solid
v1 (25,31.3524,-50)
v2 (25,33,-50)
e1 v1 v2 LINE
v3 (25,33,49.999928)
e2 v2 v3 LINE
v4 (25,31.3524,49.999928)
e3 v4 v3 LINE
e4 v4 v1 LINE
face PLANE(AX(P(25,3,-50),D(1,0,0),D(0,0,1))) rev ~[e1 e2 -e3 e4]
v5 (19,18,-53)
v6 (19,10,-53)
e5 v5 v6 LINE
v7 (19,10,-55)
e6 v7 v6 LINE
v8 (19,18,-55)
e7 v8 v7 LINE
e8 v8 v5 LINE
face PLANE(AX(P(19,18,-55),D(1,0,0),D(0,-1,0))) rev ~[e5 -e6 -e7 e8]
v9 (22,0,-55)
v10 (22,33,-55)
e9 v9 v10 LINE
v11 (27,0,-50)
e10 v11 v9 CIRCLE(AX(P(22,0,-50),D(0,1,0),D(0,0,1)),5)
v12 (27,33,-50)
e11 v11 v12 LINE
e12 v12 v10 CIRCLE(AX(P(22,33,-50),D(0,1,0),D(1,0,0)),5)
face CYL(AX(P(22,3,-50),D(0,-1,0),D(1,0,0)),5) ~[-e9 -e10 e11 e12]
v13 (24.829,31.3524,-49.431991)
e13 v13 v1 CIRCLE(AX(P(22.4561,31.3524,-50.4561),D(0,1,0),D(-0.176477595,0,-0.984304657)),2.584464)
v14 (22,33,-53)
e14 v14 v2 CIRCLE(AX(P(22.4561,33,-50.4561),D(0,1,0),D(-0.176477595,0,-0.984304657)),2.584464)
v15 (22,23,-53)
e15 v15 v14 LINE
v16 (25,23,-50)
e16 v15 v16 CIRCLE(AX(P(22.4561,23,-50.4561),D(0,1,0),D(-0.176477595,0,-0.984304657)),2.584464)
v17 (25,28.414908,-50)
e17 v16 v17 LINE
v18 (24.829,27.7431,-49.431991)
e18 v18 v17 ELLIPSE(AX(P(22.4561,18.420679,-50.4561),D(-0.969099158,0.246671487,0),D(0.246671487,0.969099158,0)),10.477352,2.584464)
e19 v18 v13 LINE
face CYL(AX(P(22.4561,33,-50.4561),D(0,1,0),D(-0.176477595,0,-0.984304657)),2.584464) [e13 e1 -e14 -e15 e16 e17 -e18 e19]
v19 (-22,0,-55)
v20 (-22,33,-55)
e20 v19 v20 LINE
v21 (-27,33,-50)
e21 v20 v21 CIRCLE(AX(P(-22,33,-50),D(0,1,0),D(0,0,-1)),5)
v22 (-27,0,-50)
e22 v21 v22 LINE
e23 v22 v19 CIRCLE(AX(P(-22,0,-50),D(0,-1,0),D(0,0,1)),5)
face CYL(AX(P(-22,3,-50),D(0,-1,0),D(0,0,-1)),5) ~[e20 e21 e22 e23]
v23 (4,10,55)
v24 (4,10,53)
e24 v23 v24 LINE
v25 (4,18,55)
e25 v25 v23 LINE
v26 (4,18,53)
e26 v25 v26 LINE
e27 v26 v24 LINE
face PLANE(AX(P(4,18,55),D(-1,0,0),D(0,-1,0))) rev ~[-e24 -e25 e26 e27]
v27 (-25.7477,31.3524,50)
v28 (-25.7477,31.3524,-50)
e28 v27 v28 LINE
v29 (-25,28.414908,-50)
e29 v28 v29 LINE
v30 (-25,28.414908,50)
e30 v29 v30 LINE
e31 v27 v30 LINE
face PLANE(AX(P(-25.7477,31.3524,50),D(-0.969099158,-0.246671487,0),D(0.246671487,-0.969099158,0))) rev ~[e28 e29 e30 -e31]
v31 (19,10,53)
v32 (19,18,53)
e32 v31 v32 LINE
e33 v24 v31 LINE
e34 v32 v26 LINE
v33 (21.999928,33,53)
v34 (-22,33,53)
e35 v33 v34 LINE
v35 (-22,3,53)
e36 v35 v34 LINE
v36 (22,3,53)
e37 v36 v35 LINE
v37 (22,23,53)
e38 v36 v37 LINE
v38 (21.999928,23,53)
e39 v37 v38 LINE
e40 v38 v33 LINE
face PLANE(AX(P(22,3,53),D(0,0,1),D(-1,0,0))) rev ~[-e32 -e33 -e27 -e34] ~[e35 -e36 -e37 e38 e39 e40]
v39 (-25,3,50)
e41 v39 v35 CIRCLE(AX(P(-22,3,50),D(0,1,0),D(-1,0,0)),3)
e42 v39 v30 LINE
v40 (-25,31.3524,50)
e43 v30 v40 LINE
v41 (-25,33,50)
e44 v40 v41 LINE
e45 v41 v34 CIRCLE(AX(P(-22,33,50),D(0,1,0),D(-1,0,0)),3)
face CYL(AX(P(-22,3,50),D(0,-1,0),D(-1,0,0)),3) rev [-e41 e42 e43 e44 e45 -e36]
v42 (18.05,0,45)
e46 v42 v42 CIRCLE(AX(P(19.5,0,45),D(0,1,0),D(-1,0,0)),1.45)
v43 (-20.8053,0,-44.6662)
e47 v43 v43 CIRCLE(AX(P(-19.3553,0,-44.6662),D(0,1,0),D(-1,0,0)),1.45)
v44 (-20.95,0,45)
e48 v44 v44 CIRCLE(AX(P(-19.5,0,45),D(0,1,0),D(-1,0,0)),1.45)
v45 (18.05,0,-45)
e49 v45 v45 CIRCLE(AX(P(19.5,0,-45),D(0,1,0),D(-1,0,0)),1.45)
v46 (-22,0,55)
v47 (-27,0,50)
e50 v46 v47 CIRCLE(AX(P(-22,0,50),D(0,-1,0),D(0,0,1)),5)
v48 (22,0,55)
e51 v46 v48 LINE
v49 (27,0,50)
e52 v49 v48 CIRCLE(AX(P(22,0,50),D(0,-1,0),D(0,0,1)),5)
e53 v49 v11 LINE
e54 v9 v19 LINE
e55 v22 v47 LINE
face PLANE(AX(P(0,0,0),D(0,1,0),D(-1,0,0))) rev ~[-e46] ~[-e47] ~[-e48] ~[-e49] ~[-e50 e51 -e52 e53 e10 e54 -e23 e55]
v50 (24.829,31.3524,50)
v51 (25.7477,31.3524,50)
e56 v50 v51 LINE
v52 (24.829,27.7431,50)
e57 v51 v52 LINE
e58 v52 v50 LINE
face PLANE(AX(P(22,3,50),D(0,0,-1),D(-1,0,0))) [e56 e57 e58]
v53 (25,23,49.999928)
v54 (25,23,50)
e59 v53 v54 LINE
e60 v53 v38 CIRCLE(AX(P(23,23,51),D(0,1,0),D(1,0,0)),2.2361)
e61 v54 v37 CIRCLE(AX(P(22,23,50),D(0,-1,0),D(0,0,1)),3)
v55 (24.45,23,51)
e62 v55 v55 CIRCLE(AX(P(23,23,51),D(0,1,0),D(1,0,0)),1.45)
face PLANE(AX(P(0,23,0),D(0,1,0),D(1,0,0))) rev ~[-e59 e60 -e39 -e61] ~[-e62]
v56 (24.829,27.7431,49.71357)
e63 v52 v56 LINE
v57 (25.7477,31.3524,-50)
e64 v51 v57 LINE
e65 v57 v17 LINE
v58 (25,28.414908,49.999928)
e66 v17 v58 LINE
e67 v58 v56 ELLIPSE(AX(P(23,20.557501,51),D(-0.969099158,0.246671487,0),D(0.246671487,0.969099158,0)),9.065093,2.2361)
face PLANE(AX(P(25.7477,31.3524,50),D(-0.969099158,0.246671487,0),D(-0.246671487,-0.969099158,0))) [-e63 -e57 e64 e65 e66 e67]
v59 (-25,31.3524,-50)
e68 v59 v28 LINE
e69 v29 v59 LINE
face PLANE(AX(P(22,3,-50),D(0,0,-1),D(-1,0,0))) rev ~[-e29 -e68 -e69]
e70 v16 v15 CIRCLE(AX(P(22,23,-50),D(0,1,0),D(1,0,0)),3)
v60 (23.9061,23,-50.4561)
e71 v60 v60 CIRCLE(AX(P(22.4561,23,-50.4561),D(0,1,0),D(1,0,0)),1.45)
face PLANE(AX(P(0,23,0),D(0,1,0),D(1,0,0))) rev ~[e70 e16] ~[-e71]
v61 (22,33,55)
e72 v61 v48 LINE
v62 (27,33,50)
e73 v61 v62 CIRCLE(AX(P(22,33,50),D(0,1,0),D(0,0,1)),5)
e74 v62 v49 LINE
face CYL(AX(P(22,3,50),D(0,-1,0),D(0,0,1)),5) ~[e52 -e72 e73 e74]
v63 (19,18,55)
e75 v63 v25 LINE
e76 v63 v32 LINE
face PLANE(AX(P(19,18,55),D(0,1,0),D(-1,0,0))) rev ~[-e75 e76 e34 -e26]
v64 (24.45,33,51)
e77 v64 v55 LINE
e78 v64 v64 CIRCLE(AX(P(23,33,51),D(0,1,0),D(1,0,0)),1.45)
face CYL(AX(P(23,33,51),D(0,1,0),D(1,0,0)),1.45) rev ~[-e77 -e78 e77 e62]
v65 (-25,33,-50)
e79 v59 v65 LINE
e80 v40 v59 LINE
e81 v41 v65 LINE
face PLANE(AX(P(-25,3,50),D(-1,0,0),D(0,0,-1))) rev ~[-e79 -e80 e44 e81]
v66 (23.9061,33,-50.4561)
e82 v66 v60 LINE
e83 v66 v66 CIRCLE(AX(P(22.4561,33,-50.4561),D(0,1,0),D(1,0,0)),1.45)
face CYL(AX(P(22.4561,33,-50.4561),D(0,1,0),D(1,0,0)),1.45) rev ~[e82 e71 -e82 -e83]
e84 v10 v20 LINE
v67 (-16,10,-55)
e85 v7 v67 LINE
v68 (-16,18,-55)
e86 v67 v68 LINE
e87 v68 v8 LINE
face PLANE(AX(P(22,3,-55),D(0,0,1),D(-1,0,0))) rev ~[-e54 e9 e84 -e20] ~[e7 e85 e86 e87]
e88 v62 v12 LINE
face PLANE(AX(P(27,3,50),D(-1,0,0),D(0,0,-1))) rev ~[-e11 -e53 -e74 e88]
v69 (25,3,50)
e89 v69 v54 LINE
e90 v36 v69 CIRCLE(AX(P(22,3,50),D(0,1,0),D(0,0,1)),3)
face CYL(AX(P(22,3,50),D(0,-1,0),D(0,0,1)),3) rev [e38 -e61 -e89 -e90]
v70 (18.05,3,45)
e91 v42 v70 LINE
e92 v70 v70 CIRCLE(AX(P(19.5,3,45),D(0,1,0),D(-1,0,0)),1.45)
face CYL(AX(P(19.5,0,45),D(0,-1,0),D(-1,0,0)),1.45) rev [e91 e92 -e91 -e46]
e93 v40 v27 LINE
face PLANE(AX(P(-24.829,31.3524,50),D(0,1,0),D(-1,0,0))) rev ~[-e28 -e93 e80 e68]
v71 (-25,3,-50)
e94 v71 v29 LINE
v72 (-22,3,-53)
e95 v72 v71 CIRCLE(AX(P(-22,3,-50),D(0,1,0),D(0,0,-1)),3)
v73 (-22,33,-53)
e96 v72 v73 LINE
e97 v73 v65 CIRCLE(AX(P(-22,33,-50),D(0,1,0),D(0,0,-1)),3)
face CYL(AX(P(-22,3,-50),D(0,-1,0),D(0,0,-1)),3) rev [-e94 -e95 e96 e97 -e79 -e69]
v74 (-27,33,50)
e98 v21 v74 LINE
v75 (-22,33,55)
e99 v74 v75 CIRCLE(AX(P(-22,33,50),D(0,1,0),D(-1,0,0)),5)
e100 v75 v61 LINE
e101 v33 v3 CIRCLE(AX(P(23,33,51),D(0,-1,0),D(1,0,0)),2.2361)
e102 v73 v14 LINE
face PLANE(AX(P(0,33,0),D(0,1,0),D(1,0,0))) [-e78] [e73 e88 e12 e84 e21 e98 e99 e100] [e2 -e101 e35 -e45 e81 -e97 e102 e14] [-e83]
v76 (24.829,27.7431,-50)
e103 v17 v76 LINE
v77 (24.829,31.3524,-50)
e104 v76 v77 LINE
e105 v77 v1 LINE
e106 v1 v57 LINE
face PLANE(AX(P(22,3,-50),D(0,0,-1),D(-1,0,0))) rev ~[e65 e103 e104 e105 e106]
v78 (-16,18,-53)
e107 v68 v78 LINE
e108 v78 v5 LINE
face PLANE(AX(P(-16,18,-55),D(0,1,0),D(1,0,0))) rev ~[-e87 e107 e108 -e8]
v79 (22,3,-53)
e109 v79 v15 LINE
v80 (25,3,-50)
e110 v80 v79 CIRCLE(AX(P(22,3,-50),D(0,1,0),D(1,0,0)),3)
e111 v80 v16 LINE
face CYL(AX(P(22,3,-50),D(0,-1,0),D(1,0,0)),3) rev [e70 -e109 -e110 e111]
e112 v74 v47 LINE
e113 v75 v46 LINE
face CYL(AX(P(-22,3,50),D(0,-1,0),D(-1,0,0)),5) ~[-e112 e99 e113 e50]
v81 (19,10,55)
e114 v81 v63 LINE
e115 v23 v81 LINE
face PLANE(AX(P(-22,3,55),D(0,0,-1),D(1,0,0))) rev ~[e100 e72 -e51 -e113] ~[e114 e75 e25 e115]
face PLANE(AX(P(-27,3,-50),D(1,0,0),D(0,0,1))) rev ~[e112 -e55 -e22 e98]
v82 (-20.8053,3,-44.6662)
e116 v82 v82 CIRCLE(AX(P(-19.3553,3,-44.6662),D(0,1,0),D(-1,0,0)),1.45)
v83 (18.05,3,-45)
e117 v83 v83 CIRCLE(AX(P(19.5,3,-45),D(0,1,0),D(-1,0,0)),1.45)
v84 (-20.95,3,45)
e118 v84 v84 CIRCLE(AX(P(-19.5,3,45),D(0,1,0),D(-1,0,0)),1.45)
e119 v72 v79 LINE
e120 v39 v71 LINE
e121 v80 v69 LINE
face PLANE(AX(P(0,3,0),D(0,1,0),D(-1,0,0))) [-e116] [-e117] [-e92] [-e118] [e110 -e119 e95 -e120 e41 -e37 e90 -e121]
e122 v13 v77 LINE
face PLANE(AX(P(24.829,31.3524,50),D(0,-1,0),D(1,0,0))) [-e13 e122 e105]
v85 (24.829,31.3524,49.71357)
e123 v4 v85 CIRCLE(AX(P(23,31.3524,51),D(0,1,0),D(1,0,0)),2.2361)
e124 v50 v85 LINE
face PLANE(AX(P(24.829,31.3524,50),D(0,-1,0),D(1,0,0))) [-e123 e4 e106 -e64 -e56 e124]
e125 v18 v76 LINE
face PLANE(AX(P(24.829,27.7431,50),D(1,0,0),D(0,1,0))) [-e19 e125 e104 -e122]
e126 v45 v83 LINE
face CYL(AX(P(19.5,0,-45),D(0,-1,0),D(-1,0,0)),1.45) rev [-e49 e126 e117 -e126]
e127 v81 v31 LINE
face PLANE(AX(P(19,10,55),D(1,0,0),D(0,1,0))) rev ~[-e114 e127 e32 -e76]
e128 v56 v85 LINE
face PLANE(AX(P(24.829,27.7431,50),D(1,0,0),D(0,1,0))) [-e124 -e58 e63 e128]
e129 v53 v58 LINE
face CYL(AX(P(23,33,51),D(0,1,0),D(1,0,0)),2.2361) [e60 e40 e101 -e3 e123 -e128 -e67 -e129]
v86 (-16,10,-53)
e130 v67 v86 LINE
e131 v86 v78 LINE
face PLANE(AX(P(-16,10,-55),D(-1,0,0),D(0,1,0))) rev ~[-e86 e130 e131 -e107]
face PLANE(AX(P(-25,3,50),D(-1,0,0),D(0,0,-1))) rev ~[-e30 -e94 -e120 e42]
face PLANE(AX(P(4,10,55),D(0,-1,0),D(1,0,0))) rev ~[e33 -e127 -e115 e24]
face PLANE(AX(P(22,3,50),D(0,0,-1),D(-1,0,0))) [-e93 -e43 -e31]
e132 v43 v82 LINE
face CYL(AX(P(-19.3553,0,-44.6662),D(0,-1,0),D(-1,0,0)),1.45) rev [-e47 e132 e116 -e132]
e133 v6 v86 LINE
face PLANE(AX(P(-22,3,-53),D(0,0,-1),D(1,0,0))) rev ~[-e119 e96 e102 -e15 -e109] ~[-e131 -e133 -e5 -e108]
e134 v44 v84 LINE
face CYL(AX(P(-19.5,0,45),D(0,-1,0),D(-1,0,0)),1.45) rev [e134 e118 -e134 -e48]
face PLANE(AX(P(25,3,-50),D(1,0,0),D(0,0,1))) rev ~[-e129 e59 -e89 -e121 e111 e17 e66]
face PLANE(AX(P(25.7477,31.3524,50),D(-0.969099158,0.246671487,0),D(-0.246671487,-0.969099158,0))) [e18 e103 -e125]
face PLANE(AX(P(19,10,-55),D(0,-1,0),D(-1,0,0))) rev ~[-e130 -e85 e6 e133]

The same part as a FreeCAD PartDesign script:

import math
import FreeCAD as App
import Part
import Sketcher
Q = App.Units.Quantity


def edges_at(feature, points):
    """Names of the edges that pass closest to the given points."""
    edges = feature.Shape.Edges
    near = lambda p: min(range(len(edges)), key=lambda i: edges[i].distToShape(Part.Vertex(*p))[0])
    return sorted({f"Edge{near(p) + 1}" for p in points})

doc = App.newDocument("Part")
body = doc.addObject("PartDesign::Body", "Body")

# Sketch on XZ plane
sketch1 = doc.addObject("Sketcher::SketchObject", "Sketch")
body.addObject(sketch1)
sketch1.AttachmentSupport = (doc.XZ_Plane, [""])
sketch1.MapMode = "FlatFace"
sketch1.addGeometry([
    Part.LineSegment(App.Vector(27, 55, 0), App.Vector(27, -55, 0)),  # 0
    Part.LineSegment(App.Vector(27, -55, 0), App.Vector(-27, -55, 0)),  # 1
    Part.LineSegment(App.Vector(-27, -55, 0), App.Vector(-27, 55, 0)),  # 2
    Part.LineSegment(App.Vector(-27, 55, 0), App.Vector(27, 55, 0)),  # 3
    Part.Circle(App.Vector(19.5, -45, 0), App.Vector(0, 0, 1), 1.45),  # 4
    Part.Circle(App.Vector(-19.3553, -44.6662, 0), App.Vector(0, 0, 1), 1.45),  # 5
    Part.Circle(App.Vector(19.5, 45, 0), App.Vector(0, 0, 1), 1.45),  # 6
    Part.Circle(App.Vector(-19.5, 45, 0), App.Vector(0, 0, 1), 1.45),  # 7
], False)
sketch1.addConstraint([
    Sketcher.Constraint("Coincident", 0, 2, 1, 1),
    Sketcher.Constraint("Coincident", 1, 2, 2, 1),
    Sketcher.Constraint("Coincident", 2, 2, 3, 1),
    Sketcher.Constraint("Coincident", 3, 2, 0, 1),
    Sketcher.Constraint("Vertical", 0),
    Sketcher.Constraint("Horizontal", 1),
    Sketcher.Constraint("Vertical", 2),
    Sketcher.Constraint("Horizontal", 3),
    Sketcher.Constraint("Equal", 4, 5),
    Sketcher.Constraint("Equal", 5, 6),
    Sketcher.Constraint("Equal", 6, 7),
    Sketcher.Constraint("Symmetric", 4, 3, 7, 3, -1, 1),
    Sketcher.Constraint("Symmetric", 0, 2, 2, 2, -1, 1),
    Sketcher.Constraint("Symmetric", 6, 3, 7, 3, -2),
    Sketcher.Constraint("Diameter", 4, Q("2.9 mm")),
    Sketcher.Constraint("DistanceX", 1, 2, 1, 1, Q("54 mm")),
    Sketcher.Constraint("DistanceY", 0, 2, 0, 1, Q("110 mm")),
    Sketcher.Constraint("DistanceY", 4, 3, 6, 3, Q("90 mm")),
    Sketcher.Constraint("DistanceX", 7, 3, 6, 3, Q("39 mm")),
    Sketcher.Constraint("DistanceX", 5, 3, -1, 1, Q("19.3553 mm")),
    Sketcher.Constraint("DistanceY", 5, 3, -1, 1, Q("44.6662 mm")),
])
pad1 = doc.addObject("PartDesign::Pad", "Pad")
body.addObject(pad1)
pad1.Profile = sketch1
pad1.Length = 3
pad1.Reversed = True
doc.recompute()

fillet = doc.addObject("PartDesign::Fillet", "Fillet")
body.addObject(fillet)
fillet.Base = (pad1, edges_at(pad1, [
    (27, 1.5, 55),
    (-27, 1.5, 55),
    (-27, 1.5, -55),
    (27, 1.5, -55),
]))
fillet.Radius = 5

# Sketch on XZ plane
sketch2 = doc.addObject("Sketcher::SketchObject", "Sketch001")
body.addObject(sketch2)
sketch2.AttachmentSupport = (doc.XZ_Plane, [""])
sketch2.MapMode = "FlatFace"
sketch2.AttachmentOffset = App.Placement(App.Vector(0, 0, -3), App.Rotation())
sketch2.addGeometry([
    Part.LineSegment(App.Vector(27, 50, 0), App.Vector(27, -50, 0)),  # 0
    Part.ArcOfCircle(Part.Circle(App.Vector(22, -50, 0), App.Vector(0, 0, 1), 5), math.radians(-90), math.radians(0)),  # 1
    Part.LineSegment(App.Vector(22, -55, 0), App.Vector(-22, -55, 0)),  # 2
    Part.ArcOfCircle(Part.Circle(App.Vector(-22, -50, 0), App.Vector(0, 0, 1), 5), math.radians(180), math.radians(270)),  # 3
    Part.LineSegment(App.Vector(-27, -50, 0), App.Vector(-27, 50, 0)),  # 4
    Part.ArcOfCircle(Part.Circle(App.Vector(-22, 50, 0), App.Vector(0, 0, 1), 5), math.radians(90), math.radians(180)),  # 5
    Part.LineSegment(App.Vector(-22, 55, 0), App.Vector(22, 55, 0)),  # 6
    Part.ArcOfCircle(Part.Circle(App.Vector(22, 50, 0), App.Vector(0, 0, 1), 5), math.radians(0), math.radians(90)),  # 7
    Part.ArcOfCircle(Part.Circle(App.Vector(-22, 50, 0), App.Vector(0, 0, 1), 3), math.radians(90), math.radians(180)),  # 8
    Part.LineSegment(App.Vector(-25, 50, 0), App.Vector(-25, -50, 0)),  # 9
    Part.ArcOfCircle(Part.Circle(App.Vector(-22, -50, 0), App.Vector(0, 0, 1), 3), math.radians(180), math.radians(270)),  # 10
    Part.LineSegment(App.Vector(-22, -53, 0), App.Vector(22, -53, 0)),  # 11
    Part.ArcOfCircle(Part.Circle(App.Vector(22, -50, 0), App.Vector(0, 0, 1), 3), math.radians(-90), math.radians(0)),  # 12
    Part.LineSegment(App.Vector(25, -50, 0), App.Vector(25, 50, 0)),  # 13
    Part.ArcOfCircle(Part.Circle(App.Vector(22, 50, 0), App.Vector(0, 0, 1), 3), math.radians(0), math.radians(90)),  # 14
    Part.LineSegment(App.Vector(22, 53, 0), App.Vector(-22, 53, 0)),  # 15
], False)
sketch2.addConstraint([
    Sketcher.Constraint("Tangent", 0, 2, 1, 2),
    Sketcher.Constraint("Tangent", 1, 1, 2, 1),
    Sketcher.Constraint("Tangent", 2, 2, 3, 2),
    Sketcher.Constraint("Tangent", 3, 1, 4, 1),
    Sketcher.Constraint("Tangent", 4, 2, 5, 2),
    Sketcher.Constraint("Tangent", 5, 1, 6, 1),
    Sketcher.Constraint("Tangent", 6, 2, 7, 2),
    Sketcher.Constraint("Tangent", 7, 1, 0, 1),
    Sketcher.Constraint("Tangent", 8, 2, 9, 1),
    Sketcher.Constraint("Tangent", 9, 2, 10, 1),
    Sketcher.Constraint("Tangent", 10, 2, 11, 1),
    Sketcher.Constraint("Tangent", 11, 2, 12, 1),
    Sketcher.Constraint("Tangent", 12, 2, 13, 1),
    Sketcher.Constraint("Tangent", 13, 2, 14, 1),
    Sketcher.Constraint("Tangent", 14, 2, 15, 1),
    Sketcher.Constraint("Tangent", 15, 2, 8, 1),
    Sketcher.Constraint("Vertical", 0),
    Sketcher.Constraint("Horizontal", 2),
    Sketcher.Constraint("Vertical", 4),
    Sketcher.Constraint("Horizontal", 6),
    Sketcher.Constraint("Vertical", 9),
    Sketcher.Constraint("Horizontal", 11),
    Sketcher.Constraint("Vertical", 13),
    Sketcher.Constraint("Horizontal", 15),
    Sketcher.Constraint("Coincident", 8, 3, 5, 3),
    Sketcher.Constraint("Coincident", 10, 3, 3, 3),
    Sketcher.Constraint("Coincident", 12, 3, 1, 3),
    Sketcher.Constraint("Equal", 1, 3),
    Sketcher.Constraint("Equal", 3, 5),
    Sketcher.Constraint("Equal", 5, 7),
    Sketcher.Constraint("Equal", 12, 14),
    Sketcher.Constraint("Symmetric", 1, 3, 5, 3, -1, 1),
    Sketcher.Constraint("Radius", 1, Q("5 mm")),
    Sketcher.Constraint("Radius", 8, Q("3 mm")),
    Sketcher.Constraint("DistanceX", 2, 2, 2, 1, Q("44 mm")),
    Sketcher.Constraint("DistanceY", 0, 2, 0, 1, Q("100 mm")),
])
pad2 = doc.addObject("PartDesign::Pad", "Pad001")
body.addObject(pad2)
pad2.Profile = sketch2
pad2.Length = 30
pad2.Reversed = True

# Sketch on XY plane
sketch3 = doc.addObject("Sketcher::SketchObject", "Sketch002")
body.addObject(sketch3)
sketch3.AttachmentSupport = (doc.XY_Plane, [""])
sketch3.MapMode = "FlatFace"
sketch3.AttachmentOffset = App.Placement(App.Vector(0, 0, 55), App.Rotation())
sketch3.addGeometry([
    Part.LineSegment(App.Vector(19, 10, 0), App.Vector(19, 18, 0)),
    Part.LineSegment(App.Vector(19, 18, 0), App.Vector(4, 18, 0)),
    Part.LineSegment(App.Vector(4, 18, 0), App.Vector(4, 10, 0)),
    Part.LineSegment(App.Vector(4, 10, 0), App.Vector(19, 10, 0)),
], False)
sketch3.addConstraint([
    Sketcher.Constraint("Coincident", 0, 2, 1, 1),
    Sketcher.Constraint("Coincident", 1, 2, 2, 1),
    Sketcher.Constraint("Coincident", 2, 2, 3, 1),
    Sketcher.Constraint("Coincident", 3, 2, 0, 1),
    Sketcher.Constraint("Vertical", 0),
    Sketcher.Constraint("Horizontal", 1),
    Sketcher.Constraint("Vertical", 2),
    Sketcher.Constraint("Horizontal", 3),
    Sketcher.Constraint("DistanceX", 1, 2, 1, 1, Q("15 mm")),
    Sketcher.Constraint("DistanceY", 0, 1, 0, 2, Q("8 mm")),
    Sketcher.Constraint("DistanceY", -1, 1, 2, 2, Q("10 mm")),
    Sketcher.Constraint("DistanceX", -1, 1, 0, 2, Q("19 mm")),
])
pocket1 = doc.addObject("PartDesign::Pocket", "Pocket")
body.addObject(pocket1)
pocket1.Profile = sketch3
pocket1.Length = 30

# Sketch on XY plane
sketch4 = doc.addObject("Sketcher::SketchObject", "Sketch003")
body.addObject(sketch4)
sketch4.AttachmentSupport = (doc.XY_Plane, [""])
sketch4.MapMode = "FlatFace"
sketch4.AttachmentOffset = App.Placement(App.Vector(0, 0, -55), App.Rotation())
sketch4.addGeometry([
    Part.LineSegment(App.Vector(19, 18, 0), App.Vector(19, 10, 0)),
    Part.LineSegment(App.Vector(19, 10, 0), App.Vector(-16, 10, 0)),
    Part.LineSegment(App.Vector(-16, 10, 0), App.Vector(-16, 18, 0)),
    Part.LineSegment(App.Vector(-16, 18, 0), App.Vector(19, 18, 0)),
], False)
sketch4.addConstraint([
    Sketcher.Constraint("Coincident", 0, 2, 1, 1),
    Sketcher.Constraint("Coincident", 1, 2, 2, 1),
    Sketcher.Constraint("Coincident", 2, 2, 3, 1),
    Sketcher.Constraint("Coincident", 3, 2, 0, 1),
    Sketcher.Constraint("Vertical", 0),
    Sketcher.Constraint("Horizontal", 1),
    Sketcher.Constraint("Vertical", 2),
    Sketcher.Constraint("Horizontal", 3),
    Sketcher.Constraint("DistanceX", 1, 2, 1, 1, Q("35 mm")),
    Sketcher.Constraint("DistanceY", 0, 2, 0, 1, Q("8 mm")),
    Sketcher.Constraint("DistanceX", -1, 1, 0, 2, Q("19 mm")),
    Sketcher.Constraint("DistanceY", -1, 1, 0, 2, Q("10 mm")),
])
pocket2 = doc.addObject("PartDesign::Pocket", "Pocket001")
body.addObject(pocket2)
pocket2.Profile = sketch4
pocket2.Length = 30
pocket2.Reversed = True

# Sketch on XZ plane
sketch5 = doc.addObject("Sketcher::SketchObject", "Sketch004")
body.addObject(sketch5)
sketch5.AttachmentSupport = (doc.XZ_Plane, [""])
sketch5.MapMode = "FlatFace"
sketch5.AttachmentOffset = App.Placement(App.Vector(0, 0, -33), App.Rotation())
sketch5.addGeometry([
    Part.Circle(App.Vector(23, 51, 0), App.Vector(0, 0, 1), 2.2361),  # 0
    Part.Circle(App.Vector(23, 51, 0), App.Vector(0, 0, 1), 1.45),  # 1
    Part.ArcOfCircle(Part.Circle(App.Vector(22, -50, 0), App.Vector(0, 0, 1), 3), math.radians(-90), math.radians(0)),  # 2
    Part.ArcOfCircle(Part.Circle(App.Vector(22.4561, -50.4561, 0), App.Vector(0, 0, 1), 2.584464), math.radians(10.164656), math.radians(259.835344)),  # 3
    Part.Circle(App.Vector(22.4561, -50.4561, 0), App.Vector(0, 0, 1), 1.45),  # 4
], False)
sketch5.addConstraint([
    Sketcher.Constraint("Coincident", 2, 1, 3, 2),
    Sketcher.Constraint("Coincident", 3, 1, 2, 2),
    Sketcher.Constraint("Coincident", 1, 3, 0, 3),
    Sketcher.Constraint("Coincident", 4, 3, 3, 3),
    Sketcher.Constraint("Equal", 1, 4),
    Sketcher.Constraint("Horizontal", 2, 3, 3, 1),
    Sketcher.Constraint("Diameter", 1, Q("2.9 mm")),
    Sketcher.Constraint("Radius", 2, Q("3 mm")),
    Sketcher.Constraint("DistanceX", 0, 3, 3, 1, Q("2 mm")),
    Sketcher.Constraint("DistanceX", -1, 1, 0, 3, Q("23 mm")),
    Sketcher.Constraint("DistanceY", -1, 1, 0, 3, Q("51 mm")),
    Sketcher.Constraint("DistanceY", 2, 3, -1, 1, Q("50 mm")),
    Sketcher.Constraint("DistanceX", -1, 1, 2, 1, Q("22 mm")),
    Sketcher.Constraint("Diameter", 0, Q("4.4722 mm")),
    Sketcher.Constraint("Radius", 3, Q("2.5845 mm")),
])
pad3 = doc.addObject("PartDesign::Pad", "Pad002")
body.addObject(pad3)
pad3.Profile = sketch5
pad3.Length = 10

# Sketch on XY plane
sketch6 = doc.addObject("Sketcher::SketchObject", "Sketch005")
body.addObject(sketch6)
sketch6.AttachmentSupport = (doc.XY_Plane, [""])
sketch6.MapMode = "FlatFace"
sketch6.AttachmentOffset = App.Placement(App.Vector(0, 0, 50), App.Rotation())
sketch6.addGeometry([
    Part.LineSegment(App.Vector(-25.7477, 31.3524, 0), App.Vector(-24.829, 31.3524, 0)),  # 0
    Part.LineSegment(App.Vector(-24.829, 31.3524, 0), App.Vector(-24.829, 27.7431, 0)),  # 1
    Part.LineSegment(App.Vector(-24.829, 27.7431, 0), App.Vector(-25.7477, 31.3524, 0)),  # 2
    Part.LineSegment(App.Vector(24.829, 27.7431, 0), App.Vector(24.829, 31.3524, 0)),  # 3
    Part.LineSegment(App.Vector(24.829, 31.3524, 0), App.Vector(25.7477, 31.3524, 0)),  # 4
    Part.LineSegment(App.Vector(25.7477, 31.3524, 0), App.Vector(24.829, 27.7431, 0)),  # 5
], False)
sketch6.addConstraint([
    Sketcher.Constraint("Coincident", 0, 2, 1, 1),
    Sketcher.Constraint("Coincident", 1, 2, 2, 1),
    Sketcher.Constraint("Coincident", 2, 2, 0, 1),
    Sketcher.Constraint("Coincident", 3, 2, 4, 1),
    Sketcher.Constraint("Coincident", 4, 2, 5, 1),
    Sketcher.Constraint("Coincident", 5, 2, 3, 1),
    Sketcher.Constraint("Horizontal", 0),
    Sketcher.Constraint("Vertical", 1),
    Sketcher.Constraint("Vertical", 3),
    Sketcher.Constraint("Horizontal", 4),
    Sketcher.Constraint("Symmetric", 0, 2, 3, 2, -2),
    Sketcher.Constraint("Horizontal", 1, 2, 5, 2),
    Sketcher.Constraint("Equal", 0, 4),
    Sketcher.Constraint("Angle", 2, Q("104.2806 deg")),
    Sketcher.Constraint("DistanceX", 0, 1, 0, 2, Q("0.9187 mm")),
    Sketcher.Constraint("DistanceX", 0, 2, -1, 1, Q("24.829 mm")),
    Sketcher.Constraint("DistanceY", -1, 1, 1, 2, Q("27.743 mm")),
])
pocket3 = doc.addObject("PartDesign::Pocket", "Pocket002")
body.addObject(pocket3)
pocket3.Profile = sketch6
pocket3.Length = 100

doc.recompute()
